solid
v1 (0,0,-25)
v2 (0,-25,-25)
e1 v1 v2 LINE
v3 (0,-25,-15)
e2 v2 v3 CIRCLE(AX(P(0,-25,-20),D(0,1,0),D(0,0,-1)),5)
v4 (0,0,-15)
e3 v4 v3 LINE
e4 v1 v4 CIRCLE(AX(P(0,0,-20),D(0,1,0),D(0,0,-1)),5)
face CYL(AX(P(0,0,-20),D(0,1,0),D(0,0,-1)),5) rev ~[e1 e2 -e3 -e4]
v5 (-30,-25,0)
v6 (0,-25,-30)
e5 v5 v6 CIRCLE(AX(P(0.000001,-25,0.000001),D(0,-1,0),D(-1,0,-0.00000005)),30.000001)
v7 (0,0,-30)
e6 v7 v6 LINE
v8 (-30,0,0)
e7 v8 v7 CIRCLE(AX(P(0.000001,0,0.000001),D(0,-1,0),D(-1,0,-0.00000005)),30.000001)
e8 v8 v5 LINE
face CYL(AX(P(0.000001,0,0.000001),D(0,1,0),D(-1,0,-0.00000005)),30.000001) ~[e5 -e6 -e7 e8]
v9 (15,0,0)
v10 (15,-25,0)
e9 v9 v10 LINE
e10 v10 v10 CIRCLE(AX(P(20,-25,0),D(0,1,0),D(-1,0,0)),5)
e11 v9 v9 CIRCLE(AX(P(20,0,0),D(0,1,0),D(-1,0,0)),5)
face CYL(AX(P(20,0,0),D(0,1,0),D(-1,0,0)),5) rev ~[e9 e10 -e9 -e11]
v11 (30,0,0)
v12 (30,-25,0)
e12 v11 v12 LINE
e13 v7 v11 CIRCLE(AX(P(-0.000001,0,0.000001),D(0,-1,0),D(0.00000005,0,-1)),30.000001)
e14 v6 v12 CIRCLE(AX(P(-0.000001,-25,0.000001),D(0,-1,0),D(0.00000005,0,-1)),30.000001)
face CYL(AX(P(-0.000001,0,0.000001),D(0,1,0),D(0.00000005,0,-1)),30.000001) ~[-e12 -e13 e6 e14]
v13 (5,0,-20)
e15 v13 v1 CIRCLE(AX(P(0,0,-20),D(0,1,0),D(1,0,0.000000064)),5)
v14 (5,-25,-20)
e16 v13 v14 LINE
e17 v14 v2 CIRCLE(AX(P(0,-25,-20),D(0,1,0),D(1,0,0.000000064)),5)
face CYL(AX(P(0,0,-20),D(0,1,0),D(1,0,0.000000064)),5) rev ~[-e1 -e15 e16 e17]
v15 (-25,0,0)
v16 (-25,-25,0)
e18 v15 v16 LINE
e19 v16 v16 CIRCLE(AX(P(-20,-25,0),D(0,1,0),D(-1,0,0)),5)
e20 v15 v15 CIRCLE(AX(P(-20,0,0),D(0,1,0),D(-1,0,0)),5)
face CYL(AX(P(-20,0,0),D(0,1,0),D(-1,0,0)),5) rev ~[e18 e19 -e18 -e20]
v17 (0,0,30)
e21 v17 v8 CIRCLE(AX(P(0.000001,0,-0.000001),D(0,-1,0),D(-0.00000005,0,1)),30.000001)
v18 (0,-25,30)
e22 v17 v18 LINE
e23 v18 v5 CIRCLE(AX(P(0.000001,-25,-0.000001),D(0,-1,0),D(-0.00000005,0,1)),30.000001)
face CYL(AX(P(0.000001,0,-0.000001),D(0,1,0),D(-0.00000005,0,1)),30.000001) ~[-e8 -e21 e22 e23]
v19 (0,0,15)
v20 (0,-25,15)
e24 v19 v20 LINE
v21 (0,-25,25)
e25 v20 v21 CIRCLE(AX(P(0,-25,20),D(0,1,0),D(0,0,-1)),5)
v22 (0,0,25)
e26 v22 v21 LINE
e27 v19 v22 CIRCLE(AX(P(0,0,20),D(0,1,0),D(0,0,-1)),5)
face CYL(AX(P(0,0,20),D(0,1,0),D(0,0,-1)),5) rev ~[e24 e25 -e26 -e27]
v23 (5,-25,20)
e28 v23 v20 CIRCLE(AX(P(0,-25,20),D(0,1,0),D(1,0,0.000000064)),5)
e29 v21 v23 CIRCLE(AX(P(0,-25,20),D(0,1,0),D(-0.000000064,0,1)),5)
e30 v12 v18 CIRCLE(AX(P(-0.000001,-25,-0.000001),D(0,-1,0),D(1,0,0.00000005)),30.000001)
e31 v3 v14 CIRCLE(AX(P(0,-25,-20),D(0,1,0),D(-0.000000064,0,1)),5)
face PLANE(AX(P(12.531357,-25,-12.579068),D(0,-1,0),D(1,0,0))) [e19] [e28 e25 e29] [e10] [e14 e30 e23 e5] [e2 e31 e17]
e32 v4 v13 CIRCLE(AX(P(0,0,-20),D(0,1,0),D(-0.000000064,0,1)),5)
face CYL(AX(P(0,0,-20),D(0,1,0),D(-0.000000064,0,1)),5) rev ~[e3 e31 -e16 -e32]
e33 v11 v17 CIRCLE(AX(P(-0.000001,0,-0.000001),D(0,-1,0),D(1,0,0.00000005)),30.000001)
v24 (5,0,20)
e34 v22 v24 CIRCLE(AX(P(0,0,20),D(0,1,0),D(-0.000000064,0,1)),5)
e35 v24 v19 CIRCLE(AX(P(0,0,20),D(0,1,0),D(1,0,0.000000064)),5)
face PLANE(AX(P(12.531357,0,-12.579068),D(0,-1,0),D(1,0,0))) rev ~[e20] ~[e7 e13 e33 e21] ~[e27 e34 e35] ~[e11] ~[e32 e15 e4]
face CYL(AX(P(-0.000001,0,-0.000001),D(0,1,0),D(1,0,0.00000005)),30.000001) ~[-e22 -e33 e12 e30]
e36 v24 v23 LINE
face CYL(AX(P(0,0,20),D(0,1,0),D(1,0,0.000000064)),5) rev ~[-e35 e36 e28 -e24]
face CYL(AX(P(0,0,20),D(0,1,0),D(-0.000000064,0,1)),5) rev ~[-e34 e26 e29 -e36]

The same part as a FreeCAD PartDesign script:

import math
import FreeCAD as App
import Part
import Sketcher

V = App.Vector
Q = App.Units.Quantity

doc = App.newDocument("Part")
body = doc.addObject("PartDesign::Body", "Body")

# Sketch on XZ plane
sketch1 = body.newObject("Sketcher::SketchObject", "Sketch")
sketch1.AttachmentSupport = (doc.getObject("XZ_Plane"), [""])
sketch1.MapMode = "FlatFace"
sketch1.addGeometry([
    Part.ArcOfCircle(Part.Circle(V(0, 0, 0), V(0, 0, 1), 30), math.radians(-90), math.radians(0)),  # 0
    Part.ArcOfCircle(Part.Circle(V(0, 0, 0), V(0, 0, 1), 30), math.radians(0), math.radians(90)),  # 1
    Part.ArcOfCircle(Part.Circle(V(0, 0, 0), V(0, 0, 1), 30), math.radians(90), math.radians(180)),  # 2
    Part.ArcOfCircle(Part.Circle(V(0, 0, 0), V(0, 0, 1), 30), math.radians(-180), math.radians(-90)),  # 3
    Part.Circle(V(20, 0, 0), V(0, 0, 1), 5),  # 4
    Part.ArcOfCircle(Part.Circle(V(0, 20, 0), V(0, 0, 1), 5), math.radians(90), math.radians(270)),  # 5
    Part.ArcOfCircle(Part.Circle(V(0, 20, 0), V(0, 0, 1), 5), math.radians(0), math.radians(90)),  # 6
    Part.ArcOfCircle(Part.Circle(V(0, 20, 0), V(0, 0, 1), 5), math.radians(-90), math.radians(0)),  # 7
    Part.Circle(V(-20, 0, 0), V(0, 0, 1), 5),  # 8
    Part.ArcOfCircle(Part.Circle(V(0, -20, 0), V(0, 0, 1), 5), math.radians(0), math.radians(90)),  # 9
    Part.ArcOfCircle(Part.Circle(V(0, -20, 0), V(0, 0, 1), 5), math.radians(-90), math.radians(0)),  # 10
    Part.ArcOfCircle(Part.Circle(V(0, -20, 0), V(0, 0, 1), 5), math.radians(90), math.radians(270)),  # 11
], False)
sketch1.addConstraint([
    Sketcher.Constraint("Tangent", 0, 2, 1, 1),
    Sketcher.Constraint("Tangent", 1, 2, 2, 1),
    Sketcher.Constraint("Tangent", 2, 2, 3, 1),
    Sketcher.Constraint("Tangent", 3, 2, 0, 1),
    Sketcher.Constraint("Tangent", 5, 1, 6, 2),
    Sketcher.Constraint("Tangent", 6, 1, 7, 2),
    Sketcher.Constraint("Tangent", 7, 1, 5, 2),
    Sketcher.Constraint("Tangent", 9, 1, 10, 2),
    Sketcher.Constraint("Tangent", 10, 1, 11, 2),
    Sketcher.Constraint("Tangent", 11, 1, 9, 2),
    Sketcher.Constraint("Coincident", 0, 3, -1, 1),
    Sketcher.Constraint("Equal", 0, 1),
    Sketcher.Constraint("Equal", 4, 5),
    Sketcher.Constraint("Equal", 7, 8),
    Sketcher.Constraint("Equal", 8, 9),
    Sketcher.Constraint("Symmetric", 4, 3, 8, 3, -1, 1),
    Sketcher.Constraint("Symmetric", 5, 3, 9, 3, -1, 1),
    Sketcher.Constraint("Symmetric", 6, 1, 9, 1, -1),
    Sketcher.Constraint("PointOnObject", 4, 3, -1),
    Sketcher.Constraint("PointOnObject", 0, 2, -1),
    Sketcher.Constraint("PointOnObject", 1, 2, -2),
    Sketcher.Constraint("PointOnObject", 2, 2, -1),
    Sketcher.Constraint("PointOnObject", 3, 2, -2),
    Sketcher.Constraint("PointOnObject", 5, 1, -2),
    Sketcher.Constraint("PointOnObject", 7, 1, -2),
    Sketcher.Constraint("PointOnObject", 10, 1, -2),
    Sketcher.Constraint("PointOnObject", 11, 1, -2),
    Sketcher.Constraint("Horizontal", 7, 3, 6, 1),
    Sketcher.Constraint("Diameter", 4, Q("10 mm")),
    Sketcher.Constraint("Radius", 0, Q("30.000001 mm")),
    Sketcher.Constraint("DistanceX", -1, 1, 4, 3, Q("20 mm")),
    Sketcher.Constraint("DistanceY", -1, 1, 5, 3, Q("20 mm")),
])
pad1 = body.newObject("PartDesign::Pad", "Pad")
pad1.Profile = sketch1
pad1.Length = 25

doc.recompute()
